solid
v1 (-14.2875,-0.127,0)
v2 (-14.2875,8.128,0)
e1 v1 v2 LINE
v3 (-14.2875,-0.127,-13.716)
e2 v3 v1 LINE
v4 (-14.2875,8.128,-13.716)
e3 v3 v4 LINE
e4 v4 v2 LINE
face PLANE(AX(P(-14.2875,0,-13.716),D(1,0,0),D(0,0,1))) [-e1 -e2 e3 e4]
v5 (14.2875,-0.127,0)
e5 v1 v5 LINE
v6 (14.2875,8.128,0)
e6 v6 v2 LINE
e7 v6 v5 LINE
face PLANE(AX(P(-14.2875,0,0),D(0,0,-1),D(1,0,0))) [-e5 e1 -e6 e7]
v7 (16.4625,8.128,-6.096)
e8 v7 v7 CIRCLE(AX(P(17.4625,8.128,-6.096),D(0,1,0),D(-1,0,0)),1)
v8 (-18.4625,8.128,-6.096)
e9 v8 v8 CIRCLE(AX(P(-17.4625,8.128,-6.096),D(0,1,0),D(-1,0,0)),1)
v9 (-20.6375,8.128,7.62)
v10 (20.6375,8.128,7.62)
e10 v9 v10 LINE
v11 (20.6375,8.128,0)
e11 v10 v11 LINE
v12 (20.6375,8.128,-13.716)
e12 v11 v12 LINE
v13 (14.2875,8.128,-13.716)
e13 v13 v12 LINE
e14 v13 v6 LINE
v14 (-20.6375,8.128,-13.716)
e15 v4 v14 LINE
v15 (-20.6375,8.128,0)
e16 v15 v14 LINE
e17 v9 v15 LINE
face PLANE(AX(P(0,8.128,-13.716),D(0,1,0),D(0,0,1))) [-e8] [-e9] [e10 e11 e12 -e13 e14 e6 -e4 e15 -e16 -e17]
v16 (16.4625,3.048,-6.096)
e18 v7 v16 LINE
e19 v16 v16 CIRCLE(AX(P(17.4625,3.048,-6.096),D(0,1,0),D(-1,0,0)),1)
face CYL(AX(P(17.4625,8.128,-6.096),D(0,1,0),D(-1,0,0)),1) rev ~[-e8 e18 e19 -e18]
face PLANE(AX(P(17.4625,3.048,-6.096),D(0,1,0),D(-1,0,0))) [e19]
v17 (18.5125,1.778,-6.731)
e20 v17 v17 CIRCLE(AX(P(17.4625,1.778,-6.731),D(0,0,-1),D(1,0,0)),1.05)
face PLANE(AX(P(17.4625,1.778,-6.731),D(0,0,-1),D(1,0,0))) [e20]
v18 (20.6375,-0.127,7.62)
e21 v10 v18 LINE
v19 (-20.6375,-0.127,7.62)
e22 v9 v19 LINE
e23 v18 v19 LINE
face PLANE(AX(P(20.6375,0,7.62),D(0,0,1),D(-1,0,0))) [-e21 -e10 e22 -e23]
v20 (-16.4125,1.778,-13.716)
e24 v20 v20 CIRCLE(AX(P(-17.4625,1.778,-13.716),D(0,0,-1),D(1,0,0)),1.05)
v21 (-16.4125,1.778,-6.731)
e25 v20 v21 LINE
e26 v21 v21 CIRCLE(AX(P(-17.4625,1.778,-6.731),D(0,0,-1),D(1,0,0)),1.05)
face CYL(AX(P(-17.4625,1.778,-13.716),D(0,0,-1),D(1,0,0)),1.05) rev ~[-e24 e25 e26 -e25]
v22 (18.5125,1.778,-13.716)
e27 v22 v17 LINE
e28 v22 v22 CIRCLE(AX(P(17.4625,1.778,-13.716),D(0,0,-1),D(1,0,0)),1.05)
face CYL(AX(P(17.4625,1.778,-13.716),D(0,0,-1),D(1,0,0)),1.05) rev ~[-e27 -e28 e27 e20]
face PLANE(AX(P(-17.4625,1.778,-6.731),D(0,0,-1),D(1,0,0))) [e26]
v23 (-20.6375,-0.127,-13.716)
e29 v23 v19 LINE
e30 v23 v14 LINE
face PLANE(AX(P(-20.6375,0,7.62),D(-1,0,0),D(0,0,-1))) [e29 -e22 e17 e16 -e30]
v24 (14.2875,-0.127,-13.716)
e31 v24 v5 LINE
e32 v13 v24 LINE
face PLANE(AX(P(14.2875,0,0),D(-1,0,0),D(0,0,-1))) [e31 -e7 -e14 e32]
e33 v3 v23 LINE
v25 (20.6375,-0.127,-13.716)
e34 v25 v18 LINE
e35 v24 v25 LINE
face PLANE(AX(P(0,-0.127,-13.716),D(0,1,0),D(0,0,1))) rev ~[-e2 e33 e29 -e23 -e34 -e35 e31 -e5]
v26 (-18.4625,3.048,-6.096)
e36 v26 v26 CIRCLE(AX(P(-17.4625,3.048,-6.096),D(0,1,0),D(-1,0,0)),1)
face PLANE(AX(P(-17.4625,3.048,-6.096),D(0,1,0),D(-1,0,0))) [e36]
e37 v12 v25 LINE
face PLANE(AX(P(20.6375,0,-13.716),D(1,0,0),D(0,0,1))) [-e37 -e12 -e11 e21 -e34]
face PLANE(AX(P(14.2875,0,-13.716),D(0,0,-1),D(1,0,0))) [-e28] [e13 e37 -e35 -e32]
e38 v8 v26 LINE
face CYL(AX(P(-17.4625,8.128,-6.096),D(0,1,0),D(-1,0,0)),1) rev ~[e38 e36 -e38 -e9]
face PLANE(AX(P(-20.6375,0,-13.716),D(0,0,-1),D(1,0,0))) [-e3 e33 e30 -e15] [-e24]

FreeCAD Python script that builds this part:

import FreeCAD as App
import Part
import Sketcher
from FreeCAD import Vector
Q = App.Units.Quantity


def add_polygon(sketch, points):
    """Adds a closed chain of lines whose ends are joined by coincident constraints."""
    first, n = sketch.GeometryCount, len(points)
    for a, b in zip(points, points[1:] + points[:1]):
        sketch.addGeometry(Part.LineSegment(App.Vector(*a, 0), App.Vector(*b, 0)), False)
    for i in range(n):
        sketch.addConstraint(Sketcher.Constraint("Coincident", first + i, 2, first + (i + 1) % n, 1))

doc = App.newDocument("Part")
body = doc.addObject("PartDesign::Body", "Body")

sketch1 = body.newObject("Sketcher::SketchObject", "Sketch")
sketch1.AttachmentSupport = (doc.getObject("XZ_Plane"), [""])
sketch1.MapMode = "FlatFace"
add_polygon(sketch1, [(-14, 0), (14, 0), (14, -14), (21, -14), (21, 8), (-21, 8), (-21, -14), (-14, -14)])
sketch1.addConstraint([
    Sketcher.Constraint("Horizontal", 0),
    Sketcher.Constraint("Vertical", 1),
    Sketcher.Constraint("Horizontal", 2),
    Sketcher.Constraint("Vertical", 3),
    Sketcher.Constraint("Horizontal", 4),
    Sketcher.Constraint("Vertical", 5),
    Sketcher.Constraint("Horizontal", 6),
    Sketcher.Constraint("Vertical", 7),
    Sketcher.Constraint("Symmetric", 0, 2, 7, 2, -1, 1),
    Sketcher.Constraint("Symmetric", 2, 2, 5, 2, -2),
    Sketcher.Constraint("DistanceX", 2, 1, 2, 2, Q("0.25 in")),
    Sketcher.Constraint("DistanceY", 1, 2, 1, 1, Q("0.54 in")),
    Sketcher.Constraint("DistanceY", 3, 1, 3, 2, Q("0.84 in")),
    Sketcher.Constraint("DistanceX", 0, 1, 0, 2, Q("1.125 in")),
])
pad1 = body.newObject("PartDesign::Pad", "Pad")
pad1.Profile = sketch1
pad1.Length = Q("0.84 in")
pad1.Midplane = True

sketch2 = body.newObject("Sketcher::SketchObject", "Sketch001")
sketch2.AttachmentSupport = (doc.getObject("YZ_Plane"), [""])
sketch2.MapMode = "FlatFace"
add_polygon(sketch2, [(8.1, 0), (8.1, -13.7), (10.7, -13.7), (10.7, 0)])
add_polygon(sketch2, [(-10.7, 0), (-10.7, -13.7), (-0.1, -13.7), (-0.1, 0)])
sketch2.addConstraint([
    Sketcher.Constraint("Vertical", 0),
    Sketcher.Constraint("Horizontal", 1),
    Sketcher.Constraint("Vertical", 2),
    Sketcher.Constraint("Horizontal", 3),
    Sketcher.Constraint("Vertical", 4),
    Sketcher.Constraint("Horizontal", 5),
    Sketcher.Constraint("Vertical", 6),
    Sketcher.Constraint("Horizontal", 7),
    Sketcher.Constraint("Symmetric", 2, 2, 7, 2, -1, 1),
    Sketcher.Constraint("PointOnObject", 2, 2, -1),
    Sketcher.Constraint("Horizontal", 1, 2, 4, 2),
    Sketcher.Constraint("DistanceX", 1, 1, 1, 2, Q("0.1 in")),
    Sketcher.Constraint("DistanceY", 0, 2, 0, 1, Q("0.54 in")),
    Sketcher.Constraint("DistanceX", 5, 1, 5, 2, Q("0.415 in")),
    Sketcher.Constraint("DistanceX", -1, 1, 0, 2, Q("0.32 in")),
])
pocket1 = body.newObject("PartDesign::Pocket", "Pocket")
pocket1.Profile = sketch2
pocket1.Type = "ThroughAll"
pocket1.Midplane = True

sketch3 = body.newObject("Sketcher::SketchObject", "Sketch002")
sketch3.AttachmentSupport = (doc.getObject("XZ_Plane"), [""])
sketch3.MapMode = "FlatFace"
sketch3.AttachmentOffset = App.Placement(Vector(0, 0, -0.32 * 25.4), App.Rotation())
sketch3.addGeometry([
    Part.Circle(Vector(17.5, -6.1, 0), Vector(0, 0, 1), 1),
    Part.Circle(Vector(-17.5, -6.1, 0), Vector(0, 0, 1), 1),
], False)
sketch3.addConstraint([
    Sketcher.Constraint("Equal", 0, 1),
    Sketcher.Constraint("Symmetric", 0, 3, 1, 3, -2),
    Sketcher.Constraint("Diameter", 0, Q("2 mm")),
    Sketcher.Constraint("DistanceY", 0, 3, -1, 1, Q("0.24 in")),
    Sketcher.Constraint("DistanceX", -1, 1, 0, 3, Q("0.6875 in")),
])
pocket2 = body.newObject("PartDesign::Pocket", "Pocket001")
pocket2.Profile = sketch3
pocket2.Length = Q("0.2 in")
pocket2.Reversed = True

sketch4 = body.newObject("Sketcher::SketchObject", "Sketch003")
sketch4.AttachmentSupport = (doc.getObject("XY_Plane"), [""])
sketch4.MapMode = "FlatFace"
sketch4.AttachmentOffset = App.Placement(Vector(0, 0, -0.54 * 25.4), App.Rotation())
sketch4.addGeometry([
    Part.Circle(Vector(-17.5, 1.8, 0), Vector(0, 0, 1), 1.1),
    Part.Circle(Vector(17.5, 1.8, 0), Vector(0, 0, 1), 1.1),
], False)
sketch4.addConstraint([
    Sketcher.Constraint("Equal", 0, 1),
    Sketcher.Constraint("Symmetric", 0, 3, 1, 3, -2),
    Sketcher.Constraint("Diameter", 0, Q("2.1 mm")),
    Sketcher.Constraint("DistanceY", -1, 1, 0, 3, Q("0.07 in")),
    Sketcher.Constraint("DistanceX", 0, 3, -1, 1, Q("0.6875 in")),
])
pocket3 = body.newObject("PartDesign::Pocket", "Pocket002")
pocket3.Profile = sketch4
pocket3.Length = Q("0.275 in")
pocket3.Reversed = True

sketch5 = body.newObject("Sketcher::SketchObject", "Sketch004")
sketch5.AttachmentSupport = (doc.getObject("YZ_Plane"), [""])
sketch5.MapMode = "FlatFace"
add_polygon(sketch5, [(-11.6, 8.6), (-11.6, 0), (-0.1, 0), (-0.1, 8.6)])
add_polygon(sketch5, [(8.1, 8.6), (8.1, 0), (12.4, 0), (12.4, 8.6)])
sketch5.addConstraint([
    Sketcher.Constraint("Vertical", 0),
    Sketcher.Constraint("Horizontal", 1),
    Sketcher.Constraint("Vertical", 2),
    Sketcher.Constraint("Horizontal", 3),
    Sketcher.Constraint("Vertical", 4),
    Sketcher.Constraint("Horizontal", 5),
    Sketcher.Constraint("Vertical", 6),
    Sketcher.Constraint("Horizontal", 7),
    Sketcher.Constraint("PointOnObject", 0, 2, -1),
    Sketcher.Constraint("PointOnObject", 4, 2, -1),
    Sketcher.Constraint("Horizontal", 3, 2, 6, 2),
    Sketcher.Constraint("DistanceX", -1, 1, 4, 2, Q("0.32 in")),
    Sketcher.Constraint("DistanceX", 1, 2, -1, 1, Q("0.005 in")),
    Sketcher.Constraint("DistanceX", 1, 1, 1, 2, Q("11.445352 mm")),
    Sketcher.Constraint("DistanceY", 0, 2, 0, 1, Q("8.624552 mm")),
    Sketcher.Constraint("DistanceX", 5, 1, 5, 2, Q("4.265075 mm")),
])
pocket4 = body.newObject("PartDesign::Pocket", "Pocket003")
pocket4.Profile = sketch5
pocket4.Type = "ThroughAll"
pocket4.Midplane = True

doc.recompute()
